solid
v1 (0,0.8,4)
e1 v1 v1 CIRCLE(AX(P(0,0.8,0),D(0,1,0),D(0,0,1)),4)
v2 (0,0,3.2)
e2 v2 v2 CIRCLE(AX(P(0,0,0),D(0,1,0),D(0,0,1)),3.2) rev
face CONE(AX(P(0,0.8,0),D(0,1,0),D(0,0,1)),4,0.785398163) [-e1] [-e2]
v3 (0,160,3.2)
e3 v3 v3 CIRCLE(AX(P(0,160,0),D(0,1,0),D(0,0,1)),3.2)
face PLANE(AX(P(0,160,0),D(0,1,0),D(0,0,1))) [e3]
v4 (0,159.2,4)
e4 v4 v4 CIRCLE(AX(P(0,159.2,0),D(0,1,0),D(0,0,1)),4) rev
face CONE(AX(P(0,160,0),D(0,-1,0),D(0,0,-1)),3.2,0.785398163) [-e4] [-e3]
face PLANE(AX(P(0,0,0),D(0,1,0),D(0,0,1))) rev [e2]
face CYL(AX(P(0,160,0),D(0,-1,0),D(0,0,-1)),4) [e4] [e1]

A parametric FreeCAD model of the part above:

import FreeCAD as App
import Part
import Sketcher
from FreeCAD import Vector
Q = App.Units.Quantity


def edges_at(feature, points):
    """Names of the edges that pass closest to the given points."""
    edges = feature.Shape.Edges
    near = lambda p: min(range(len(edges)), key=lambda i: edges[i].distToShape(Part.Vertex(*p))[0])
    return sorted({f"Edge{near(p) + 1}" for p in points})

doc = App.newDocument("Part")
params = doc.addObject("Spreadsheet::Sheet", "Params")
for row, (alias, value) in enumerate([
    ("sketch1_diameter", "8 mm"),
    ("pad1_length", "160 mm"),
    ("chamfer_size", "0.8 mm"),
], start=1):
    params.set(f"A{row}", alias)
    params.set(f"B{row}", "=" + value)
    params.setAlias(f"B{row}", alias)

body = doc.addObject("PartDesign::Body", "Body")

sketch1 = doc.addObject("Sketcher::SketchObject", "Sketch")
body.addObject(sketch1)
sketch1.AttachmentSupport = (doc.XZ_Plane, [""])
sketch1.MapMode = "FlatFace"
sketch1.addGeometry(Part.Circle(Vector(0, 0, 0), Vector(0, 0, 1), 4), False)
sketch1.addConstraint(Sketcher.Constraint("Coincident", 0, 3, -1, 1))
sketch1.addConstraint(Sketcher.Constraint("Diameter", 0, Q("8 mm")))
sketch1.setExpression("Constraints[1]", "Params.sketch1_diameter")
pad1 = doc.addObject("PartDesign::Pad", "Pad")
body.addObject(pad1)
pad1.Profile = sketch1
pad1.setExpression("Length", "Params.pad1_length")
pad1.Reversed = True
doc.recompute()

chamfer = doc.addObject("PartDesign::Chamfer", "Chamfer")
body.addObject(chamfer)
chamfer.Base = (pad1, edges_at(pad1, [(0, 0, -4), (0, 160, -4)]))
chamfer.setExpression("Size", "Params.chamfer_size")

doc.recompute()
